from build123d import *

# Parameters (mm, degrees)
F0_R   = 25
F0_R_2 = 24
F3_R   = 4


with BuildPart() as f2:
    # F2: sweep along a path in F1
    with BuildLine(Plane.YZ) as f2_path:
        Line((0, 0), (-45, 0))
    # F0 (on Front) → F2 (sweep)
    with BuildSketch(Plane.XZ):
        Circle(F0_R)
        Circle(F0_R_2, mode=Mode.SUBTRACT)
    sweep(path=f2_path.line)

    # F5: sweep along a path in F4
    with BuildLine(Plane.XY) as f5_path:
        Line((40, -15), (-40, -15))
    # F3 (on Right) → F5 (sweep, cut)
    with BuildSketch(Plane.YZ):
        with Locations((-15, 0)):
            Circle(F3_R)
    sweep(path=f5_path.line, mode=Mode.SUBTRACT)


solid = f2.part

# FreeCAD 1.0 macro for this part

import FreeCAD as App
import Part
import Sketcher
from FreeCAD import Vector
Q = App.Units.Quantity

doc = App.newDocument("Part")
params = doc.addObject("Spreadsheet::Sheet", "Params")
for row, (alias, value) in enumerate([
    ("sketch1_diameter", "50 mm"),
    ("sketch1_diameter2", "48 mm"),
    ("sketch2_height", "45 mm"),
    ("sketch3_diameter", "8 mm"),
    ("sketch4_width", "80 mm"),
], start=1):
    params.set(f"A{row}", alias)
    params.set(f"B{row}", "=" + value)
    params.setAlias(f"B{row}", alias)

body = doc.addObject("PartDesign::Body", "Body")

sketch1 = doc.addObject("Sketcher::SketchObject", "Sketch")
body.addObject(sketch1)
sketch1.AttachmentSupport = (doc.XZ_Plane, [""])
sketch1.MapMode = "FlatFace"
sketch1.addGeometry(Part.Circle(Vector(0, 0, 0), Vector(0, 0, 1), 25), False)
sketch1.addGeometry(Part.Circle(Vector(0, 0, 0), Vector(0, 0, 1), 24), False)
sketch1.addConstraint(Sketcher.Constraint("Coincident", 0, 3, -1, 1))
sketch1.addConstraint(Sketcher.Constraint("Coincident", 1, 3, -1, 1))
sketch1.addConstraint(Sketcher.Constraint("Diameter", 0, Q("50 mm")))
sketch1.addConstraint(Sketcher.Constraint("Diameter", 1, Q("48 mm")))
sketch1.setExpression("Constraints[2]", "Params.sketch1_diameter")
sketch1.setExpression("Constraints[3]", "Params.sketch1_diameter2")

sketch2 = doc.addObject("Sketcher::SketchObject", "Sketch001")
body.addObject(sketch2)
sketch2.AttachmentSupport = (doc.XY_Plane, [""])
sketch2.MapMode = "FlatFace"
sketch2.addGeometry(Part.LineSegment(Vector(0, 0, 0), Vector(0, -45, 0)), False)
sketch2.addConstraint(Sketcher.Constraint("Vertical", 0))
sketch2.addConstraint(Sketcher.Constraint("Coincident", 0, 1, -1, 1))
sketch2.addConstraint(Sketcher.Constraint("DistanceY", 0, 2, 0, 1, Q("45 mm")))
sketch2.setExpression("Constraints[2]", "Params.sketch2_height")
doc.recompute()

additivepipe = doc.addObject("PartDesign::AdditivePipe", "AdditivePipe")
body.addObject(additivepipe)
additivepipe.Profile = sketch1
additivepipe.Spine = (sketch2, ["Edge1"])

sketch3 = doc.addObject("Sketcher::SketchObject", "Sketch002")
body.addObject(sketch3)
sketch3.AttachmentSupport = (doc.YZ_Plane, [""])
sketch3.MapMode = "FlatFace"
sketch3.addGeometry(Part.Circle(Vector(-15, 0, 0), Vector(0, 0, 1), 4), False)
sketch3.addConstraint(Sketcher.Constraint("PointOnObject", 0, 3, -1))
sketch3.addConstraint(Sketcher.Constraint("Diameter", 0, Q("8 mm")))
sketch3.addConstraint(Sketcher.Constraint("DistanceX", 0, 3, -1, 1, Q("15 mm")))
sketch3.setExpression("Constraints[1]", "Params.sketch3_diameter")

sketch4 = doc.addObject("Sketcher::SketchObject", "Sketch003")
body.addObject(sketch4)
sketch4.AttachmentSupport = (doc.XY_Plane, [""])
sketch4.MapMode = "FlatFace"
sketch4.addGeometry(Part.LineSegment(Vector(40, -15, 0), Vector(-40, -15, 0)), False)
sketch4.addConstraint(Sketcher.Constraint("Horizontal", 0))
sketch4.addConstraint(Sketcher.Constraint("DistanceX", 0, 2, 0, 1, Q("80 mm")))
sketch4.addConstraint(Sketcher.Constraint("DistanceX", -1, 1, 0, 1, Q("40 mm")))
sketch4.addConstraint(Sketcher.Constraint("DistanceY", 0, 1, -1, 1, Q("15 mm")))
sketch4.setExpression("Constraints[1]", "Params.sketch4_width")
doc.recompute()

subtractivepipe = doc.addObject("PartDesign::SubtractivePipe", "SubtractivePipe")
body.addObject(subtractivepipe)
subtractivepipe.Profile = sketch3
subtractivepipe.Spine = (sketch4, ["Edge1"])

doc.recompute()
